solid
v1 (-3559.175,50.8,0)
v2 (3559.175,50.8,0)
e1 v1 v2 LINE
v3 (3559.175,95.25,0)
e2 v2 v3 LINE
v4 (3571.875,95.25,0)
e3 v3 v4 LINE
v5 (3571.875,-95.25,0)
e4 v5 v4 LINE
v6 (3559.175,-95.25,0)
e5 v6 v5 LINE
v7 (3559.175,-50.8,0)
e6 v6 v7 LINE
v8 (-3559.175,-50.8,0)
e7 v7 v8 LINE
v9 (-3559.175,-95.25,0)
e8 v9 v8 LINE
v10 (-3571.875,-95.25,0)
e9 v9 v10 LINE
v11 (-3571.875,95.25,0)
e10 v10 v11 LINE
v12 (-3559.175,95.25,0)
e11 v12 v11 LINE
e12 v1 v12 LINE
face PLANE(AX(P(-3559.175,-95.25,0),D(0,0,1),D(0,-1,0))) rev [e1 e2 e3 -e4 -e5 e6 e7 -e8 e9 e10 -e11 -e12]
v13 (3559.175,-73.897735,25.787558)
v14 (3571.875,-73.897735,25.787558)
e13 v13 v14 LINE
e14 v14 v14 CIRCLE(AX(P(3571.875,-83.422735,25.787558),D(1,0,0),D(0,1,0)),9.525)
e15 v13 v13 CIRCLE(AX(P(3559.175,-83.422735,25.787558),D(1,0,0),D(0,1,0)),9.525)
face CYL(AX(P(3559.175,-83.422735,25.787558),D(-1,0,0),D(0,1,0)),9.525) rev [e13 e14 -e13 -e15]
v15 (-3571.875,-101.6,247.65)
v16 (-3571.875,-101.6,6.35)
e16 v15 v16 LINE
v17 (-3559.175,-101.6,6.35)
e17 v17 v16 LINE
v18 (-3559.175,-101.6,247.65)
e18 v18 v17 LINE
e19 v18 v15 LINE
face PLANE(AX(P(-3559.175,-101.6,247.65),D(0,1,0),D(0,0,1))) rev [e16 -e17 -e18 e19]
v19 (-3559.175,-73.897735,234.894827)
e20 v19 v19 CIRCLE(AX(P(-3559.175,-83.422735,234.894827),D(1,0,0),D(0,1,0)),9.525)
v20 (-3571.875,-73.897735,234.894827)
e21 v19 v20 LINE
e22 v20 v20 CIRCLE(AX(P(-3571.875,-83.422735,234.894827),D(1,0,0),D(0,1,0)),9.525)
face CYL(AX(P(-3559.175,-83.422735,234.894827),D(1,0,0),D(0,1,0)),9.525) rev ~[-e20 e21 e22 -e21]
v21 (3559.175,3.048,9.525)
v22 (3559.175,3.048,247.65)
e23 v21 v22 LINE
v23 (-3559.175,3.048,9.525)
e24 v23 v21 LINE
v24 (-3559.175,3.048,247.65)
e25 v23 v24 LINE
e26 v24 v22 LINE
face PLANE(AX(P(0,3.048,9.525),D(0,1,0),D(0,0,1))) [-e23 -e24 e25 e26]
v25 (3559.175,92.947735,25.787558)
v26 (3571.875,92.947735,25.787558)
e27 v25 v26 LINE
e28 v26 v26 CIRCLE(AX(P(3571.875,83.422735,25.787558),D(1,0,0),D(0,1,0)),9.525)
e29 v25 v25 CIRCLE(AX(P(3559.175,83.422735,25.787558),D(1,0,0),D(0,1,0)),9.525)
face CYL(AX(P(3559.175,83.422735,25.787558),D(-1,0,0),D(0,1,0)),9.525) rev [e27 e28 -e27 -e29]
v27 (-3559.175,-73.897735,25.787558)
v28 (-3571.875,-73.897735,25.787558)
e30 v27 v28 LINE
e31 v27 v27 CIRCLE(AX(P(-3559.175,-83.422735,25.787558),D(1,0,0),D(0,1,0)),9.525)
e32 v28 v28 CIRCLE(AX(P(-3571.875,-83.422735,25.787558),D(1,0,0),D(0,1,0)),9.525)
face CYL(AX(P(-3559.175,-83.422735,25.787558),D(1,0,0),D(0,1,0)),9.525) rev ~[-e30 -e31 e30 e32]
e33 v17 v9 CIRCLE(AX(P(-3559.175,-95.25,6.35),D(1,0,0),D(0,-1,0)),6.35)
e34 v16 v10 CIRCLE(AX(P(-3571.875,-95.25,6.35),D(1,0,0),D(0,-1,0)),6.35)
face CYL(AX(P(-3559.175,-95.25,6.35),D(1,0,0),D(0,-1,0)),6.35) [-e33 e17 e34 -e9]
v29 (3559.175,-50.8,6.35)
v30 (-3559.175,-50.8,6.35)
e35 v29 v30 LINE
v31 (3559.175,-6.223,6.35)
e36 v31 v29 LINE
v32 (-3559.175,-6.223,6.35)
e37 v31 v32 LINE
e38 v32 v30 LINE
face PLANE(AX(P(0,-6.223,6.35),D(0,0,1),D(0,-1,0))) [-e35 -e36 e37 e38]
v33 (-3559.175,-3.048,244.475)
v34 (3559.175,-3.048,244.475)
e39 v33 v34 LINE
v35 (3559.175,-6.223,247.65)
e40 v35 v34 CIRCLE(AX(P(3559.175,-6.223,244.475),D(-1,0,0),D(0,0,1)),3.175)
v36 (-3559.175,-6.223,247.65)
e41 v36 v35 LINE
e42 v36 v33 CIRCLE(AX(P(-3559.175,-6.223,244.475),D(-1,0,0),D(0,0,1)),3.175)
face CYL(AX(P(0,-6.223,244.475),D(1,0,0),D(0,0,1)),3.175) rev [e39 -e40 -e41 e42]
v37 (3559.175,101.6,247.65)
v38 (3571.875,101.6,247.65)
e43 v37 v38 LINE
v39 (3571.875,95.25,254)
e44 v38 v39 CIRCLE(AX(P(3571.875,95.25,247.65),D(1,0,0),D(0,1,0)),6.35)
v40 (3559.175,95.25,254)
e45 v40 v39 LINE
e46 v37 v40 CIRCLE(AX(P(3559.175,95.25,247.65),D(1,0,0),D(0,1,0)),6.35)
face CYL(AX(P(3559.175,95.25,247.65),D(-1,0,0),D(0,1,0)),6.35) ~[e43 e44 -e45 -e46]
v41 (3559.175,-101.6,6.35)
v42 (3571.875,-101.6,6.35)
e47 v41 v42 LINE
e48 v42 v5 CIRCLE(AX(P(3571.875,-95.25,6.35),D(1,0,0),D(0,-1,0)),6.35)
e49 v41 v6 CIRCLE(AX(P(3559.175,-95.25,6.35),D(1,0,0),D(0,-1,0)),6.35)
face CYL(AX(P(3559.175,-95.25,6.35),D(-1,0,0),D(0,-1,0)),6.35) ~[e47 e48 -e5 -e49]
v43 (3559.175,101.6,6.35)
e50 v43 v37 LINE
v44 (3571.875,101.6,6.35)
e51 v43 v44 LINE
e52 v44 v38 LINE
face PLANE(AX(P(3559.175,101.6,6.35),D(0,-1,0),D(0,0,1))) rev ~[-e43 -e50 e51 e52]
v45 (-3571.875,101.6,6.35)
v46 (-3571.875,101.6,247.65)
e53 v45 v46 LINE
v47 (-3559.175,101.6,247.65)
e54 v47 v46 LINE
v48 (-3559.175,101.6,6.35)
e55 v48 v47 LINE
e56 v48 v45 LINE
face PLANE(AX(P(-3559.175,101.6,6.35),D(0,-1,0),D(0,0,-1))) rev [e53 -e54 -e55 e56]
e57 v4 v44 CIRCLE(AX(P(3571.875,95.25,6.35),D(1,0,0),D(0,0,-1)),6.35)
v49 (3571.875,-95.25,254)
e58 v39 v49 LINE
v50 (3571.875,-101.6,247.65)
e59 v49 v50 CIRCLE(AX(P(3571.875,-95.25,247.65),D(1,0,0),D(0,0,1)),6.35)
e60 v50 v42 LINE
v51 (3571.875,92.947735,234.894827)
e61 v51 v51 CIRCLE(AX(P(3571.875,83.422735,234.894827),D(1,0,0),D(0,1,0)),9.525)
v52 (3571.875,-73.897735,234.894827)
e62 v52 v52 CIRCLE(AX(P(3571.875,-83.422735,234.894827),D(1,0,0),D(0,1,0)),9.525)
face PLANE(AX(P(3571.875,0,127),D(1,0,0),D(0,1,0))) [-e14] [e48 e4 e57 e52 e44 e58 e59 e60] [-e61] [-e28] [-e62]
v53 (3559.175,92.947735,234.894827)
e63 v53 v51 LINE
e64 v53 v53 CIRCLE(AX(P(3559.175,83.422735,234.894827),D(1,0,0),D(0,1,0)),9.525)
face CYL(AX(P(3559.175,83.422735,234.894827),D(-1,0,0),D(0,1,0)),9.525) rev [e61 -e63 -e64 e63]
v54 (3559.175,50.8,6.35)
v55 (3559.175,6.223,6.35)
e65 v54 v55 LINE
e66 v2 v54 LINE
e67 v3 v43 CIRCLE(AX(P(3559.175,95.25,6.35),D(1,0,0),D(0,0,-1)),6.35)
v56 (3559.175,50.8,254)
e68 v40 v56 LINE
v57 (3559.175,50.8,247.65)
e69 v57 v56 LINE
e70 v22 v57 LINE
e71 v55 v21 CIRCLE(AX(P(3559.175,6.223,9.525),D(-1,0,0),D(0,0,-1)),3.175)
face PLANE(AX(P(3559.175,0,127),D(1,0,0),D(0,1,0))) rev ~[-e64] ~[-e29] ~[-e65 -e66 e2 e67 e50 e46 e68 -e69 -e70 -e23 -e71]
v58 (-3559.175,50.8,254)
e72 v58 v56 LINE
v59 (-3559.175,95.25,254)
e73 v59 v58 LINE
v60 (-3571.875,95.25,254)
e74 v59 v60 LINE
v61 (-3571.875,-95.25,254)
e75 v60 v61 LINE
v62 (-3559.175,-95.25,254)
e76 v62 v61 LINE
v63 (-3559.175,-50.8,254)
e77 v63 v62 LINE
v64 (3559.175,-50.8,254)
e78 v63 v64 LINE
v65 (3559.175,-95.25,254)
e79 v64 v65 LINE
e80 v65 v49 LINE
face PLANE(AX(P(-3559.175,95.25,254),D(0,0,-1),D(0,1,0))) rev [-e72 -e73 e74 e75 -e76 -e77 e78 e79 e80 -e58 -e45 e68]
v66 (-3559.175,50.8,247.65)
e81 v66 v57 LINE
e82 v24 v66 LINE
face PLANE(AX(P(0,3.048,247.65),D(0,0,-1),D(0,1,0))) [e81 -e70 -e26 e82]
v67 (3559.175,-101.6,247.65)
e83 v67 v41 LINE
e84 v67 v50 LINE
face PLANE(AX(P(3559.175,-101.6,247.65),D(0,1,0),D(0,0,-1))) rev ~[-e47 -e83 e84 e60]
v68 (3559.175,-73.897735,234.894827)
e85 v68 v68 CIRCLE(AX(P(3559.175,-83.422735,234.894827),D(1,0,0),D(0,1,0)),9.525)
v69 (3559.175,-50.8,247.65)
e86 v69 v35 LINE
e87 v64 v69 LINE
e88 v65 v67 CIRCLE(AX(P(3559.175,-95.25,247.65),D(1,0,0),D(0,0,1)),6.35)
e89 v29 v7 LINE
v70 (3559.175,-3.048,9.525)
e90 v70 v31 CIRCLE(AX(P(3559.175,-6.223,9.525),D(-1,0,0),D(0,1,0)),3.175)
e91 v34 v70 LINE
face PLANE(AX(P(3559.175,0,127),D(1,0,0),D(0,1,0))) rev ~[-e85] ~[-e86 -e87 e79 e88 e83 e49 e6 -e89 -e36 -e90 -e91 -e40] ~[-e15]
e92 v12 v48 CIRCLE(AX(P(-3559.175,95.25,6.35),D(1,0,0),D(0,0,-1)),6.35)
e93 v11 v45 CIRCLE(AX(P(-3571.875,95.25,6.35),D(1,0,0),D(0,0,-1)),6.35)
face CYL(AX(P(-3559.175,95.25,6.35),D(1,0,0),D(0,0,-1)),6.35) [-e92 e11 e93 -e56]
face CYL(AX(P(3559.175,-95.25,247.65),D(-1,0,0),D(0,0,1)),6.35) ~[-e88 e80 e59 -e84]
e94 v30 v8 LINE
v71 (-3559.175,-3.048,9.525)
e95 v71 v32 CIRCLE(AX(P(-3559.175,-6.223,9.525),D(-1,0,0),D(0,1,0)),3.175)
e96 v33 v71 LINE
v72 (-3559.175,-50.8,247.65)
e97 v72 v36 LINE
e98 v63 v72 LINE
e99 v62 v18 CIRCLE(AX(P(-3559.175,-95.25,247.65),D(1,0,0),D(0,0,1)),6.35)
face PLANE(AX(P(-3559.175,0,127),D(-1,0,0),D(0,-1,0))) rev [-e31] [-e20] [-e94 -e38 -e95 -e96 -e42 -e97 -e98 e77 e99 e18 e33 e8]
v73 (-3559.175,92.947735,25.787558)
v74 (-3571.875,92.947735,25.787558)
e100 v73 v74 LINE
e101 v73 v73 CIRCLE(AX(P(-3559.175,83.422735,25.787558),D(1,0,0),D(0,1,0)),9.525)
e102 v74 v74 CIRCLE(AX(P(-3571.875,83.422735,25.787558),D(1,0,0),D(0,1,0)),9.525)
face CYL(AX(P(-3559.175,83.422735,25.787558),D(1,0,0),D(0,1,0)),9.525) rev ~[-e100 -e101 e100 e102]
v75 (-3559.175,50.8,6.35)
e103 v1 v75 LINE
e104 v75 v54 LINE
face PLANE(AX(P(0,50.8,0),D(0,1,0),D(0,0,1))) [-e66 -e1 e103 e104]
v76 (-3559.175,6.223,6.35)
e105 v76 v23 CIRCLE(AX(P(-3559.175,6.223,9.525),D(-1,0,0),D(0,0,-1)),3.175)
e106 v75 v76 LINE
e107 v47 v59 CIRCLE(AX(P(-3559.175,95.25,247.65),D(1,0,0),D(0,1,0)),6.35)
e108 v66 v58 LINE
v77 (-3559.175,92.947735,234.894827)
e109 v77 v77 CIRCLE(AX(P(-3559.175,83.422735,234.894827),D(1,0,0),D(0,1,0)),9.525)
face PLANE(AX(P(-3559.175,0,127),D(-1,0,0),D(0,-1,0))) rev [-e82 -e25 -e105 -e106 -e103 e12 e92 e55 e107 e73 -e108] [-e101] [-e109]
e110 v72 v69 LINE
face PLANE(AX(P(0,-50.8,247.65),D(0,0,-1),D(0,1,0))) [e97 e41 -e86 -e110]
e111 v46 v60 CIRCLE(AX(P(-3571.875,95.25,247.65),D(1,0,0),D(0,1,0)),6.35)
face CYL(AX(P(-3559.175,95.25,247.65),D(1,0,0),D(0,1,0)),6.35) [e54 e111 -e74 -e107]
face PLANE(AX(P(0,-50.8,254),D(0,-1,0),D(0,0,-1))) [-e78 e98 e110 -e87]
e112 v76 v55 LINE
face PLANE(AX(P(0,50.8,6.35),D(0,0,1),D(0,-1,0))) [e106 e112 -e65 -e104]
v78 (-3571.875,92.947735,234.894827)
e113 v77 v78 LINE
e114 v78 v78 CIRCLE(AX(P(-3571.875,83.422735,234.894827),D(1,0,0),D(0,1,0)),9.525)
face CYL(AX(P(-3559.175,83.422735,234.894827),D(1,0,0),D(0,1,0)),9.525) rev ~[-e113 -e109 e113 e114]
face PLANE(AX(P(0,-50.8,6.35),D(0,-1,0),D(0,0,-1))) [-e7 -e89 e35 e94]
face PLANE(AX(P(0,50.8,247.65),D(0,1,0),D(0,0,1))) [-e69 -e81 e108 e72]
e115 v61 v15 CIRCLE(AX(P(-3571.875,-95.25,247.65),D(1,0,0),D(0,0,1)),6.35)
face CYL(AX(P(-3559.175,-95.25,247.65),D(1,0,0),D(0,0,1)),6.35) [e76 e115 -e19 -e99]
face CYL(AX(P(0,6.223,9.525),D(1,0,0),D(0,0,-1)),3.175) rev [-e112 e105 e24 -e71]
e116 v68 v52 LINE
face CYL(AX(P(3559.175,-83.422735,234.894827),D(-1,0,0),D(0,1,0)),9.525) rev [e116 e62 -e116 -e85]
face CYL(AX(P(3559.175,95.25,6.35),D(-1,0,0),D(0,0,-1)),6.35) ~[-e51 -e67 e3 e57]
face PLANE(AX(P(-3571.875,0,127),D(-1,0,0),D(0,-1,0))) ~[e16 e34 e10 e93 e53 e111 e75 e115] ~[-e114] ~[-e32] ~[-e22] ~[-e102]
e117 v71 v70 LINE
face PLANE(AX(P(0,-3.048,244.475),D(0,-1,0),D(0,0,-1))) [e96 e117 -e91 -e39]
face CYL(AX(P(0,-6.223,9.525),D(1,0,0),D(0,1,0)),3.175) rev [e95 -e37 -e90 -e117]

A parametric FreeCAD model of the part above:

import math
import FreeCAD as App
import Part
import Sketcher
Q = App.Units.Quantity

doc = App.newDocument("Part")
body = doc.addObject("PartDesign::Body", "Body")

sketch1 = body.newObject("Sketcher::SketchObject", "Sketch")
sketch1.AttachmentSupport = (doc.getObject("YZ_Plane"), [""])
sketch1.MapMode = "FlatFace"
sketch1.addGeometry(Part.LineSegment(App.Vector(-50.8, 0, 0), App.Vector(50.8, 0, 0)), False)
sketch1.addGeometry(Part.LineSegment(App.Vector(50.8, 0, 0), App.Vector(50.8, 6.3, 0)), False)
sketch1.addGeometry(Part.LineSegment(App.Vector(50.8, 6.3, 0), App.Vector(6.2, 6.3, 0)), False)
sketch1.addGeometry(Part.ArcOfCircle(Part.Circle(App.Vector(6.2, 9.5, 0), App.Vector(0, 0, 1), 3.2), math.radians(180), math.radians(270)), False)
sketch1.addGeometry(Part.LineSegment(App.Vector(3, 9.5, 0), App.Vector(3, 247.7, 0)), False)
sketch1.addGeometry(Part.LineSegment(App.Vector(3, 247.7, 0), App.Vector(50.8, 247.7, 0)), False)
sketch1.addGeometry(Part.LineSegment(App.Vector(50.8, 247.7, 0), App.Vector(50.8, 254, 0)), False)
sketch1.addGeometry(Part.LineSegment(App.Vector(50.8, 254, 0), App.Vector(-50.8, 254, 0)), False)
sketch1.addGeometry(Part.LineSegment(App.Vector(-50.8, 254, 0), App.Vector(-50.8, 247.7, 0)), False)
sketch1.addGeometry(Part.LineSegment(App.Vector(-50.8, 247.7, 0), App.Vector(-6.2, 247.7, 0)), False)
sketch1.addGeometry(Part.ArcOfCircle(Part.Circle(App.Vector(-6.2, 244.5, 0), App.Vector(0, 0, 1), 3.2), math.radians(0), math.radians(90)), False)
sketch1.addGeometry(Part.LineSegment(App.Vector(-3, 244.5, 0), App.Vector(-3, 9.5, 0)), False)
sketch1.addGeometry(Part.ArcOfCircle(Part.Circle(App.Vector(-6.2, 9.5, 0), App.Vector(0, 0, 1), 3.2), math.radians(-90), math.radians(0)), False)
sketch1.addGeometry(Part.LineSegment(App.Vector(-6.2, 6.3, 0), App.Vector(-50.8, 6.3, 0)), False)
sketch1.addGeometry(Part.LineSegment(App.Vector(-50.8, 6.3, 0), App.Vector(-50.8, 0, 0)), False)
sketch1.addConstraint(Sketcher.Constraint("Coincident", 0, 2, 1, 1))
sketch1.addConstraint(Sketcher.Constraint("Coincident", 1, 2, 2, 1))
sketch1.addConstraint(Sketcher.Constraint("Tangent", 2, 2, 3, 2))
sketch1.addConstraint(Sketcher.Constraint("Tangent", 3, 1, 4, 1))
sketch1.addConstraint(Sketcher.Constraint("Coincident", 4, 2, 5, 1))
sketch1.addConstraint(Sketcher.Constraint("Coincident", 5, 2, 6, 1))
sketch1.addConstraint(Sketcher.Constraint("Coincident", 6, 2, 7, 1))
sketch1.addConstraint(Sketcher.Constraint("Coincident", 7, 2, 8, 1))
sketch1.addConstraint(Sketcher.Constraint("Coincident", 8, 2, 9, 1))
sketch1.addConstraint(Sketcher.Constraint("Tangent", 9, 2, 10, 2))
sketch1.addConstraint(Sketcher.Constraint("Tangent", 10, 1, 11, 1))
sketch1.addConstraint(Sketcher.Constraint("Tangent", 11, 2, 12, 2))
sketch1.addConstraint(Sketcher.Constraint("Tangent", 12, 1, 13, 1))
sketch1.addConstraint(Sketcher.Constraint("Coincident", 13, 2, 14, 1))
sketch1.addConstraint(Sketcher.Constraint("Coincident", 14, 2, 0, 1))
sketch1.addConstraint(Sketcher.Constraint("Horizontal", 0))
sketch1.addConstraint(Sketcher.Constraint("Vertical", 1))
sketch1.addConstraint(Sketcher.Constraint("Horizontal", 2))
sketch1.addConstraint(Sketcher.Constraint("Vertical", 4))
sketch1.addConstraint(Sketcher.Constraint("Horizontal", 5))
sketch1.addConstraint(Sketcher.Constraint("Vertical", 6))
sketch1.addConstraint(Sketcher.Constraint("Horizontal", 7))
sketch1.addConstraint(Sketcher.Constraint("Vertical", 8))
sketch1.addConstraint(Sketcher.Constraint("Horizontal", 9))
sketch1.addConstraint(Sketcher.Constraint("Vertical", 11))
sketch1.addConstraint(Sketcher.Constraint("Horizontal", 13))
sketch1.addConstraint(Sketcher.Constraint("Vertical", 14))
sketch1.addConstraint(Sketcher.Constraint("Equal", 3, 10))
sketch1.addConstraint(Sketcher.Constraint("Equal", 10, 12))
sketch1.addConstraint(Sketcher.Constraint("Symmetric", 0, 2, 14, 2, -1, 1))
sketch1.addConstraint(Sketcher.Constraint("Symmetric", 3, 3, 12, 3, -2))
sketch1.addConstraint(Sketcher.Constraint("Symmetric", 5, 2, 8, 2, -2))
sketch1.addConstraint(Sketcher.Constraint("Vertical", 1, 2, 5, 2))
sketch1.addConstraint(Sketcher.Constraint("Equal", 1, 6))
sketch1.addConstraint(Sketcher.Constraint("DistanceX", 0, 1, 0, 2, Q("4 in")))
sketch1.addConstraint(Sketcher.Constraint("DistanceY", -1, 1, 6, 2, Q("10 in")))
sketch1.addConstraint(Sketcher.Constraint("Radius", 3, Q("0.125 in")))
sketch1.addConstraint(Sketcher.Constraint("DistanceX", 5, 1, 5, 2, Q("1.88 in")))
sketch1.addConstraint(Sketcher.Constraint("DistanceY", 1, 1, 1, 2, Q("0.25 in")))
pad1 = body.newObject("PartDesign::Pad", "Pad")
pad1.Profile = sketch1
pad1.Length = Q("280.25 in")
pad1.Midplane = True

sketch2 = body.newObject("Sketcher::SketchObject", "Sketch001")
sketch2.AttachmentSupport = (doc.getObject("YZ_Plane"), [""])
sketch2.MapMode = "FlatFace"
sketch2.AttachmentOffset = App.Placement(App.Vector(0, 0, 140.125 * 25.4), App.Rotation())
sketch2.addGeometry(Part.ArcOfCircle(Part.Circle(App.Vector(95, 248, 0), App.Vector(0, 0, 1), 6), math.radians(0), math.radians(90)), False)
sketch2.addGeometry(Part.LineSegment(App.Vector(95, 254, 0), App.Vector(-95, 254, 0)), False)
sketch2.addGeometry(Part.ArcOfCircle(Part.Circle(App.Vector(-95, 248, 0), App.Vector(0, 0, 1), 6), math.radians(90), math.radians(180)), False)
sketch2.addGeometry(Part.LineSegment(App.Vector(-102, 248, 0), App.Vector(-102, 6, 0)), False)
sketch2.addGeometry(Part.ArcOfCircle(Part.Circle(App.Vector(-95, 6, 0), App.Vector(0, 0, 1), 6), math.radians(180), math.radians(270)), False)
sketch2.addGeometry(Part.LineSegment(App.Vector(-95, 0, 0), App.Vector(95, 0, 0)), False)
sketch2.addGeometry(Part.ArcOfCircle(Part.Circle(App.Vector(95, 6, 0), App.Vector(0, 0, 1), 6), math.radians(-90), math.radians(0)), False)
sketch2.addGeometry(Part.LineSegment(App.Vector(102, 6, 0), App.Vector(102, 248, 0)), False)
sketch2.addGeometry(Part.Circle(App.Vector(-83, 26, 0), App.Vector(0, 0, 1), 10), False)
sketch2.addGeometry(Part.Circle(App.Vector(83, 26, 0), App.Vector(0, 0, 1), 10), False)
sketch2.addGeometry(Part.Circle(App.Vector(-83, 235, 0), App.Vector(0, 0, 1), 10), False)
sketch2.addGeometry(Part.Circle(App.Vector(83, 235, 0), App.Vector(0, 0, 1), 10), False)
sketch2.addConstraint(Sketcher.Constraint("Tangent", 0, 2, 1, 1))
sketch2.addConstraint(Sketcher.Constraint("Tangent", 1, 2, 2, 1))
sketch2.addConstraint(Sketcher.Constraint("Tangent", 2, 2, 3, 1))
sketch2.addConstraint(Sketcher.Constraint("Tangent", 3, 2, 4, 1))
sketch2.addConstraint(Sketcher.Constraint("Tangent", 4, 2, 5, 1))
sketch2.addConstraint(Sketcher.Constraint("Tangent", 5, 2, 6, 1))
sketch2.addConstraint(Sketcher.Constraint("Tangent", 6, 2, 7, 1))
sketch2.addConstraint(Sketcher.Constraint("Tangent", 7, 2, 0, 1))
sketch2.addConstraint(Sketcher.Constraint("Horizontal", 1))
sketch2.addConstraint(Sketcher.Constraint("Vertical", 3))
sketch2.addConstraint(Sketcher.Constraint("Horizontal", 5))
sketch2.addConstraint(Sketcher.Constraint("Vertical", 7))
sketch2.addConstraint(Sketcher.Constraint("Equal", 0, 2))
sketch2.addConstraint(Sketcher.Constraint("Equal", 2, 4))
sketch2.addConstraint(Sketcher.Constraint("Equal", 4, 6))
sketch2.addConstraint(Sketcher.Constraint("Equal", 8, 9))
sketch2.addConstraint(Sketcher.Constraint("Equal", 9, 10))
sketch2.addConstraint(Sketcher.Constraint("Equal", 10, 11))
sketch2.addConstraint(Sketcher.Constraint("Symmetric", 4, 2, 5, 2, -1, 1))
sketch2.addConstraint(Sketcher.Constraint("Symmetric", 8, 3, 9, 3, -2))
sketch2.addConstraint(Sketcher.Constraint("Symmetric", 10, 3, 11, 3, -2))
sketch2.addConstraint(Sketcher.Constraint("Vertical", 8, 3, 10, 3))
sketch2.addConstraint(Sketcher.Constraint("Diameter", 8, Q("0.75 in")))
sketch2.addConstraint(Sketcher.Constraint("Radius", 0, Q("0.25 in")))
sketch2.addConstraint(Sketcher.Constraint("DistanceX", 1, 2, 1, 1, Q("7.5 in")))
sketch2.addConstraint(Sketcher.Constraint("DistanceY", 3, 2, 3, 1, Q("9.5 in")))
sketch2.addConstraint(Sketcher.Constraint("DistanceY", -1, 1, 8, 3, 25.787558))
sketch2.addConstraint(Sketcher.Constraint("DistanceX", 8, 3, 9, 3, 166.845471))
sketch2.addConstraint(Sketcher.Constraint("DistanceY", 8, 3, 10, 3, 209.107269))
pad2 = body.newObject("PartDesign::Pad", "Pad001")
pad2.Profile = sketch2
pad2.Length = Q("0.5 in")
body2 = doc.addObject("PartDesign::Body", "Body001")
doc.recompute()

body2.BaseFeature = body
doc.recompute()

mirroring = doc.addObject("Part::Mirroring", "Mirroring")
mirroring.Source = body
mirroring.Base = App.Vector(0, 0, 0)
mirroring.Normal = App.Vector(1, 0, 0)
body3 = doc.addObject("PartDesign::Body", "Body002")
body3.BaseFeature = mirroring
boolean = body2.newObject("PartDesign::Boolean", "Boolean")
boolean.Type = "Fuse"
boolean.addObjects([body3])
doc.recompute()
mirroring.Visibility = False

doc.recompute()
